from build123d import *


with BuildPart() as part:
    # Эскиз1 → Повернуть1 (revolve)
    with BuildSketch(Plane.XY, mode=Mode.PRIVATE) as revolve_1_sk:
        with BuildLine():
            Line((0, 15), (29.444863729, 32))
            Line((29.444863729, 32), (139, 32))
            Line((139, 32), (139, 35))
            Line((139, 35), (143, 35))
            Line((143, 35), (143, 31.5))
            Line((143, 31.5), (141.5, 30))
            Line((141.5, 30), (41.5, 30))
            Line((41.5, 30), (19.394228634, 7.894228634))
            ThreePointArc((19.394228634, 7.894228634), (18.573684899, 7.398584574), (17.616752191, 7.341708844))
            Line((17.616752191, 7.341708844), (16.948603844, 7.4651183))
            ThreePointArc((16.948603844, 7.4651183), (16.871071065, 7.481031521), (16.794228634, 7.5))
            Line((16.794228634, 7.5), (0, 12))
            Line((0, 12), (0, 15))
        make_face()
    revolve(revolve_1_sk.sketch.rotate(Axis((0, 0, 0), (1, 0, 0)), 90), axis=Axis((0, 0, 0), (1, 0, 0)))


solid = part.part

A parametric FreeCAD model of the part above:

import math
import FreeCAD as App
import Part
import Sketcher
Q = App.Units.Quantity

doc = App.newDocument("Part")
params = doc.addObject("Spreadsheet::Sheet", "Params")
for row, (alias, value) in enumerate([
    ("sketch1_radius", "2 mm"),
    ("sketch1_width", "100 mm"),
    ("sketch1_width2", "4 mm"),
    ("sketch1_height", "3 mm"),
    ("sketch1_length", "34 mm"),
    ("revolution_angle", "360 deg"),
], start=1):
    params.set(f"A{row}", alias)
    params.set(f"B{row}", "=" + value)
    params.setAlias(f"B{row}", alias)

body = doc.addObject("PartDesign::Body", "Body")

# Sketch on XY plane
sketch1 = body.newObject("Sketcher::SketchObject", "Sketch")
sketch1.AttachmentSupport = (doc.getObject("XY_Plane"), [""])
sketch1.MapMode = "FlatFace"
sketch1.addGeometry([
    Part.LineSegment(App.Vector(29.44, 32, 0), App.Vector(0, 15, 0)),  # 0
    Part.LineSegment(App.Vector(0, 15, 0), App.Vector(0, 12, 0)),  # 1
    Part.LineSegment(App.Vector(0, 12, 0), App.Vector(16.79, 7.5, 0)),  # 2
    Part.ArcOfCircle(Part.Circle(App.Vector(17.31, 9.43, 0), App.Vector(0, 0, 1), 2), math.radians(-105), math.radians(-100.46)),  # 3
    Part.LineSegment(App.Vector(16.95, 7.47, 0), App.Vector(17.62, 7.34, 0)),  # 4
    Part.ArcOfCircle(Part.Circle(App.Vector(17.98, 9.31, 0), App.Vector(0, 0, 1), 2), math.radians(-100), math.radians(-45)),  # 5
    Part.LineSegment(App.Vector(19.39, 7.89, 0), App.Vector(41.5, 30, 0)),  # 6
    Part.LineSegment(App.Vector(41.5, 30, 0), App.Vector(141.5, 30, 0)),  # 7
    Part.LineSegment(App.Vector(141.5, 30, 0), App.Vector(143, 31.5, 0)),  # 8
    Part.LineSegment(App.Vector(143, 31.5, 0), App.Vector(143, 35, 0)),  # 9
    Part.LineSegment(App.Vector(143, 35, 0), App.Vector(139, 35, 0)),  # 10
    Part.LineSegment(App.Vector(139, 35, 0), App.Vector(139, 32, 0)),  # 11
    Part.LineSegment(App.Vector(139, 32, 0), App.Vector(29.44, 32, 0)),  # 12
], False)
sketch1.addConstraint([
    Sketcher.Constraint("Coincident", 0, 2, 1, 1),
    Sketcher.Constraint("Coincident", 1, 2, 2, 1),
    Sketcher.Constraint("Tangent", 2, 2, 3, 1),
    Sketcher.Constraint("Tangent", 3, 2, 4, 1),
    Sketcher.Constraint("Tangent", 4, 2, 5, 1),
    Sketcher.Constraint("Tangent", 5, 2, 6, 1),
    Sketcher.Constraint("Coincident", 6, 2, 7, 1),
    Sketcher.Constraint("Coincident", 7, 2, 8, 1),
    Sketcher.Constraint("Coincident", 8, 2, 9, 1),
    Sketcher.Constraint("Coincident", 9, 2, 10, 1),
    Sketcher.Constraint("Coincident", 10, 2, 11, 1),
    Sketcher.Constraint("Coincident", 11, 2, 12, 1),
    Sketcher.Constraint("Coincident", 12, 2, 0, 1),
    Sketcher.Constraint("Vertical", 1),
    Sketcher.Constraint("Horizontal", 7),
    Sketcher.Constraint("Vertical", 9),
    Sketcher.Constraint("Horizontal", 10),
    Sketcher.Constraint("Vertical", 11),
    Sketcher.Constraint("Horizontal", 12),
    Sketcher.Constraint("Equal", 3, 5),
    Sketcher.Constraint("PointOnObject", 0, 2, -2),
    Sketcher.Constraint("Parallel", 6, 8),
    Sketcher.Constraint("Equal", 1, 11),
    Sketcher.Constraint("Radius", 3, Q("2 mm")),
    Sketcher.Constraint("DistanceX", 7, 1, 7, 2, Q("100 mm")),
    Sketcher.Constraint("DistanceX", 10, 2, 10, 1, Q("4 mm")),
    Sketcher.Constraint("DistanceY", 1, 2, 1, 1, Q("3 mm")),
    Sketcher.Constraint("Angle", 0, Q("-150 deg")),
    Sketcher.Constraint("Angle", 2, Q("-15 deg")),
    Sketcher.Constraint("Angle", 6, Q("45 deg")),
    Sketcher.Constraint("Distance", 0, Q("34 mm")),
    Sketcher.Constraint("DistanceY", 9, 1, 9, 2, Q("3.5 mm")),
    Sketcher.Constraint("DistanceY", -1, 1, 0, 2, Q("15 mm")),
    Sketcher.Constraint("DistanceY", -1, 1, 6, 2, Q("30 mm")),
    Sketcher.Constraint("DistanceX", -1, 1, 8, 2, Q("143 mm")),
    Sketcher.Constraint("DistanceY", -1, 1, 2, 2, Q("7.5 mm")),
    Sketcher.Constraint("DistanceX", 2, 2, 5, 2, Q("2.6 mm")),
])
sketch1.setExpression("Constraints[23]", "Params.sketch1_radius")
sketch1.setExpression("Constraints[24]", "Params.sketch1_width")
sketch1.setExpression("Constraints[25]", "Params.sketch1_width2")
sketch1.setExpression("Constraints[26]", "Params.sketch1_height")
sketch1.setExpression("Constraints[30]", "Params.sketch1_length")
revolution = body.newObject("PartDesign::Revolution", "Revolution")
revolution.Profile = sketch1
revolution.ReferenceAxis = (sketch1, ["H_Axis"])
revolution.setExpression("Angle", "Params.revolution_angle")

doc.recompute()
